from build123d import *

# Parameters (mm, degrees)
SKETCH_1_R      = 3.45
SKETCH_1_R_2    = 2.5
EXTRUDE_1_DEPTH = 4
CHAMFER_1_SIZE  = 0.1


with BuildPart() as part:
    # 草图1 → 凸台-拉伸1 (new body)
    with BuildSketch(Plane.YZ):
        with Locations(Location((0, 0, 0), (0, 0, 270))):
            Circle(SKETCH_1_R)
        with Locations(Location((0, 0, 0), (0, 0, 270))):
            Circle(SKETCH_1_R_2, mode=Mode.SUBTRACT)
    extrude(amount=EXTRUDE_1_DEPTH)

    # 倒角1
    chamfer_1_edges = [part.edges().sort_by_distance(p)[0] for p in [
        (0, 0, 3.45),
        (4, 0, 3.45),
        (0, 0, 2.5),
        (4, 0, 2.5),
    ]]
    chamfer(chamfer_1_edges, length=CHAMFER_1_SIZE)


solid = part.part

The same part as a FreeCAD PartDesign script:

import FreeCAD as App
import Part
import Sketcher
Q = App.Units.Quantity


def edges_at(feature, points):
    """Names of the edges that pass closest to the given points."""
    edges = feature.Shape.Edges
    near = lambda p: min(range(len(edges)), key=lambda i: edges[i].distToShape(Part.Vertex(*p))[0])
    return sorted({f"Edge{near(p) + 1}" for p in points})

doc = App.newDocument("Part")
body = doc.addObject("PartDesign::Body", "Body")

# Sketch on YZ plane
sketch1 = body.newObject("Sketcher::SketchObject", "Sketch")
sketch1.AttachmentSupport = (doc.getObject("YZ_Plane"), [""])
sketch1.MapMode = "FlatFace"
sketch1.addGeometry([
    Part.Circle(App.Vector(0, 0, 0), App.Vector(0, 0, 1), 3.45),
    Part.Circle(App.Vector(0, 0, 0), App.Vector(0, 0, 1), 2.5),
], False)
sketch1.addConstraint([
    Sketcher.Constraint("Coincident", 0, 3, -1, 1),
    Sketcher.Constraint("Coincident", 1, 3, -1, 1),
    Sketcher.Constraint("Diameter", 1, Q("5 mm")),
    Sketcher.Constraint("Diameter", 0, Q("6.9 mm")),
])
pad1 = body.newObject("PartDesign::Pad", "Pad")
pad1.Profile = sketch1
pad1.Length = 4
doc.recompute()

chamfer = body.newObject("PartDesign::Chamfer", "Chamfer")
chamfer.Base = (pad1, edges_at(pad1, [
    (0, 0, 3.45),
    (4, 0, 3.45),
    (0, 0, 2.5),
    (4, 0, 2.5),
]))
chamfer.Size = 0.1

doc.recompute()
